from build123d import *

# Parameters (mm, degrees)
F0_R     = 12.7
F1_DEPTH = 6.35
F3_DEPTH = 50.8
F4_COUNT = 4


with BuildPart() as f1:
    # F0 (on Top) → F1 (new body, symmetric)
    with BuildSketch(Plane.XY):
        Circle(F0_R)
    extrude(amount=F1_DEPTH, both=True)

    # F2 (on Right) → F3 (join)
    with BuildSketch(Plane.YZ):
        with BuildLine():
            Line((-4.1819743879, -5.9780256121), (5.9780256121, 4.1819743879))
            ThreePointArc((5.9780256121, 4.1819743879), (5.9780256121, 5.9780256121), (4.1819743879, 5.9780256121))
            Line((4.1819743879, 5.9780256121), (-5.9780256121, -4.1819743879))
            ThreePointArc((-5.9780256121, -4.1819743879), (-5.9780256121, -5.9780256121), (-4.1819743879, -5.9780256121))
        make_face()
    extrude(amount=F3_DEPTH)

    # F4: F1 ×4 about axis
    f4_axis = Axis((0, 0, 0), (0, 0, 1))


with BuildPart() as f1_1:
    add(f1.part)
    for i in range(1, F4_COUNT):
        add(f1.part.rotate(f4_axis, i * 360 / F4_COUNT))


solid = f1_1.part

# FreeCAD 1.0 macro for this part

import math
import FreeCAD as App
import Part
import Sketcher

V = App.Vector
Q = App.Units.Quantity

doc = App.newDocument("Part")
body = doc.addObject("PartDesign::Body", "Body")

# Sketch on XY plane
sketch1 = body.newObject("Sketcher::SketchObject", "Sketch")
sketch1.AttachmentSupport = (doc.getObject("XY_Plane"), [""])
sketch1.MapMode = "FlatFace"
sketch1.addGeometry(Part.Circle(V(0, 0, 0), V(0, 0, 1), 13), False)
sketch1.addConstraint([
    Sketcher.Constraint("Coincident", 0, 3, -1, 1),
    Sketcher.Constraint("Diameter", 0, Q("1 in")),
])
pad1 = body.newObject("PartDesign::Pad", "Pad")
pad1.Profile = sketch1
pad1.Length = Q("0.5 in")
pad1.Midplane = True

# Sketch on YZ plane
sketch2 = body.newObject("Sketcher::SketchObject", "Sketch001")
sketch2.AttachmentSupport = (doc.getObject("YZ_Plane"), [""])
sketch2.MapMode = "FlatFace"
sketch2.addGeometry([
    Part.LineSegment(V(-4.2, -6, 0), V(6, 4.2, 0)),
    Part.ArcOfCircle(Part.Circle(V(5.1, 5.1, 0), V(0, 0, 1), 1.3), math.radians(-45), math.radians(135)),
    Part.LineSegment(V(4.2, 6, 0), V(-6, -4.2, 0)),
    Part.ArcOfCircle(Part.Circle(V(-5.1, -5.1, 0), V(0, 0, 1), 1.3), math.radians(135), math.radians(315)),
], False)
sketch2.addConstraint([
    Sketcher.Constraint("Tangent", 0, 2, 1, 1),
    Sketcher.Constraint("Tangent", 1, 2, 2, 1),
    Sketcher.Constraint("Tangent", 2, 2, 3, 1),
    Sketcher.Constraint("Tangent", 3, 2, 0, 1),
    Sketcher.Constraint("Equal", 1, 3),
    Sketcher.Constraint("Symmetric", 1, 3, 3, 3, -1, 1),
    Sketcher.Constraint("Radius", 1, Q("0.05 in")),
    Sketcher.Constraint("Angle", 0, Q("45 deg")),
    Sketcher.Constraint("DistanceX", -1, 1, 1, 3, Q("0.2 in")),
])
pad2 = body.newObject("PartDesign::Pad", "Pad001")
pad2.Profile = sketch2
pad2.Length = Q("2 in")
body2 = doc.addObject("PartDesign::Body", "Body001")
doc.recompute()

body2.BaseFeature = body
doc.recompute()

body3 = doc.addObject("PartDesign::Body", "Body002")
body3.BaseFeature = body
body3.Placement = App.Placement(V(0, 0, 0), App.Rotation(V(0, 0, 1), 90))
boolean = body2.newObject("PartDesign::Boolean", "Boolean")
boolean.Type = "Fuse"
boolean.addObjects([body3])
doc.recompute()

body4 = doc.addObject("PartDesign::Body", "Body003")
body4.BaseFeature = body
body4.Placement = App.Placement(V(0, 0, 0), App.Rotation(V(0, 0, 1), 180))
boolean2 = body2.newObject("PartDesign::Boolean", "Boolean001")
boolean2.Type = "Fuse"
boolean2.addObjects([body4])
doc.recompute()

body.Placement = App.Placement(V(0, 0, 0), App.Rotation(V(0, 0, 1), 270))
boolean3 = body2.newObject("PartDesign::Boolean", "Boolean002")
boolean3.Type = "Fuse"
boolean3.addObjects([body])

doc.recompute()
